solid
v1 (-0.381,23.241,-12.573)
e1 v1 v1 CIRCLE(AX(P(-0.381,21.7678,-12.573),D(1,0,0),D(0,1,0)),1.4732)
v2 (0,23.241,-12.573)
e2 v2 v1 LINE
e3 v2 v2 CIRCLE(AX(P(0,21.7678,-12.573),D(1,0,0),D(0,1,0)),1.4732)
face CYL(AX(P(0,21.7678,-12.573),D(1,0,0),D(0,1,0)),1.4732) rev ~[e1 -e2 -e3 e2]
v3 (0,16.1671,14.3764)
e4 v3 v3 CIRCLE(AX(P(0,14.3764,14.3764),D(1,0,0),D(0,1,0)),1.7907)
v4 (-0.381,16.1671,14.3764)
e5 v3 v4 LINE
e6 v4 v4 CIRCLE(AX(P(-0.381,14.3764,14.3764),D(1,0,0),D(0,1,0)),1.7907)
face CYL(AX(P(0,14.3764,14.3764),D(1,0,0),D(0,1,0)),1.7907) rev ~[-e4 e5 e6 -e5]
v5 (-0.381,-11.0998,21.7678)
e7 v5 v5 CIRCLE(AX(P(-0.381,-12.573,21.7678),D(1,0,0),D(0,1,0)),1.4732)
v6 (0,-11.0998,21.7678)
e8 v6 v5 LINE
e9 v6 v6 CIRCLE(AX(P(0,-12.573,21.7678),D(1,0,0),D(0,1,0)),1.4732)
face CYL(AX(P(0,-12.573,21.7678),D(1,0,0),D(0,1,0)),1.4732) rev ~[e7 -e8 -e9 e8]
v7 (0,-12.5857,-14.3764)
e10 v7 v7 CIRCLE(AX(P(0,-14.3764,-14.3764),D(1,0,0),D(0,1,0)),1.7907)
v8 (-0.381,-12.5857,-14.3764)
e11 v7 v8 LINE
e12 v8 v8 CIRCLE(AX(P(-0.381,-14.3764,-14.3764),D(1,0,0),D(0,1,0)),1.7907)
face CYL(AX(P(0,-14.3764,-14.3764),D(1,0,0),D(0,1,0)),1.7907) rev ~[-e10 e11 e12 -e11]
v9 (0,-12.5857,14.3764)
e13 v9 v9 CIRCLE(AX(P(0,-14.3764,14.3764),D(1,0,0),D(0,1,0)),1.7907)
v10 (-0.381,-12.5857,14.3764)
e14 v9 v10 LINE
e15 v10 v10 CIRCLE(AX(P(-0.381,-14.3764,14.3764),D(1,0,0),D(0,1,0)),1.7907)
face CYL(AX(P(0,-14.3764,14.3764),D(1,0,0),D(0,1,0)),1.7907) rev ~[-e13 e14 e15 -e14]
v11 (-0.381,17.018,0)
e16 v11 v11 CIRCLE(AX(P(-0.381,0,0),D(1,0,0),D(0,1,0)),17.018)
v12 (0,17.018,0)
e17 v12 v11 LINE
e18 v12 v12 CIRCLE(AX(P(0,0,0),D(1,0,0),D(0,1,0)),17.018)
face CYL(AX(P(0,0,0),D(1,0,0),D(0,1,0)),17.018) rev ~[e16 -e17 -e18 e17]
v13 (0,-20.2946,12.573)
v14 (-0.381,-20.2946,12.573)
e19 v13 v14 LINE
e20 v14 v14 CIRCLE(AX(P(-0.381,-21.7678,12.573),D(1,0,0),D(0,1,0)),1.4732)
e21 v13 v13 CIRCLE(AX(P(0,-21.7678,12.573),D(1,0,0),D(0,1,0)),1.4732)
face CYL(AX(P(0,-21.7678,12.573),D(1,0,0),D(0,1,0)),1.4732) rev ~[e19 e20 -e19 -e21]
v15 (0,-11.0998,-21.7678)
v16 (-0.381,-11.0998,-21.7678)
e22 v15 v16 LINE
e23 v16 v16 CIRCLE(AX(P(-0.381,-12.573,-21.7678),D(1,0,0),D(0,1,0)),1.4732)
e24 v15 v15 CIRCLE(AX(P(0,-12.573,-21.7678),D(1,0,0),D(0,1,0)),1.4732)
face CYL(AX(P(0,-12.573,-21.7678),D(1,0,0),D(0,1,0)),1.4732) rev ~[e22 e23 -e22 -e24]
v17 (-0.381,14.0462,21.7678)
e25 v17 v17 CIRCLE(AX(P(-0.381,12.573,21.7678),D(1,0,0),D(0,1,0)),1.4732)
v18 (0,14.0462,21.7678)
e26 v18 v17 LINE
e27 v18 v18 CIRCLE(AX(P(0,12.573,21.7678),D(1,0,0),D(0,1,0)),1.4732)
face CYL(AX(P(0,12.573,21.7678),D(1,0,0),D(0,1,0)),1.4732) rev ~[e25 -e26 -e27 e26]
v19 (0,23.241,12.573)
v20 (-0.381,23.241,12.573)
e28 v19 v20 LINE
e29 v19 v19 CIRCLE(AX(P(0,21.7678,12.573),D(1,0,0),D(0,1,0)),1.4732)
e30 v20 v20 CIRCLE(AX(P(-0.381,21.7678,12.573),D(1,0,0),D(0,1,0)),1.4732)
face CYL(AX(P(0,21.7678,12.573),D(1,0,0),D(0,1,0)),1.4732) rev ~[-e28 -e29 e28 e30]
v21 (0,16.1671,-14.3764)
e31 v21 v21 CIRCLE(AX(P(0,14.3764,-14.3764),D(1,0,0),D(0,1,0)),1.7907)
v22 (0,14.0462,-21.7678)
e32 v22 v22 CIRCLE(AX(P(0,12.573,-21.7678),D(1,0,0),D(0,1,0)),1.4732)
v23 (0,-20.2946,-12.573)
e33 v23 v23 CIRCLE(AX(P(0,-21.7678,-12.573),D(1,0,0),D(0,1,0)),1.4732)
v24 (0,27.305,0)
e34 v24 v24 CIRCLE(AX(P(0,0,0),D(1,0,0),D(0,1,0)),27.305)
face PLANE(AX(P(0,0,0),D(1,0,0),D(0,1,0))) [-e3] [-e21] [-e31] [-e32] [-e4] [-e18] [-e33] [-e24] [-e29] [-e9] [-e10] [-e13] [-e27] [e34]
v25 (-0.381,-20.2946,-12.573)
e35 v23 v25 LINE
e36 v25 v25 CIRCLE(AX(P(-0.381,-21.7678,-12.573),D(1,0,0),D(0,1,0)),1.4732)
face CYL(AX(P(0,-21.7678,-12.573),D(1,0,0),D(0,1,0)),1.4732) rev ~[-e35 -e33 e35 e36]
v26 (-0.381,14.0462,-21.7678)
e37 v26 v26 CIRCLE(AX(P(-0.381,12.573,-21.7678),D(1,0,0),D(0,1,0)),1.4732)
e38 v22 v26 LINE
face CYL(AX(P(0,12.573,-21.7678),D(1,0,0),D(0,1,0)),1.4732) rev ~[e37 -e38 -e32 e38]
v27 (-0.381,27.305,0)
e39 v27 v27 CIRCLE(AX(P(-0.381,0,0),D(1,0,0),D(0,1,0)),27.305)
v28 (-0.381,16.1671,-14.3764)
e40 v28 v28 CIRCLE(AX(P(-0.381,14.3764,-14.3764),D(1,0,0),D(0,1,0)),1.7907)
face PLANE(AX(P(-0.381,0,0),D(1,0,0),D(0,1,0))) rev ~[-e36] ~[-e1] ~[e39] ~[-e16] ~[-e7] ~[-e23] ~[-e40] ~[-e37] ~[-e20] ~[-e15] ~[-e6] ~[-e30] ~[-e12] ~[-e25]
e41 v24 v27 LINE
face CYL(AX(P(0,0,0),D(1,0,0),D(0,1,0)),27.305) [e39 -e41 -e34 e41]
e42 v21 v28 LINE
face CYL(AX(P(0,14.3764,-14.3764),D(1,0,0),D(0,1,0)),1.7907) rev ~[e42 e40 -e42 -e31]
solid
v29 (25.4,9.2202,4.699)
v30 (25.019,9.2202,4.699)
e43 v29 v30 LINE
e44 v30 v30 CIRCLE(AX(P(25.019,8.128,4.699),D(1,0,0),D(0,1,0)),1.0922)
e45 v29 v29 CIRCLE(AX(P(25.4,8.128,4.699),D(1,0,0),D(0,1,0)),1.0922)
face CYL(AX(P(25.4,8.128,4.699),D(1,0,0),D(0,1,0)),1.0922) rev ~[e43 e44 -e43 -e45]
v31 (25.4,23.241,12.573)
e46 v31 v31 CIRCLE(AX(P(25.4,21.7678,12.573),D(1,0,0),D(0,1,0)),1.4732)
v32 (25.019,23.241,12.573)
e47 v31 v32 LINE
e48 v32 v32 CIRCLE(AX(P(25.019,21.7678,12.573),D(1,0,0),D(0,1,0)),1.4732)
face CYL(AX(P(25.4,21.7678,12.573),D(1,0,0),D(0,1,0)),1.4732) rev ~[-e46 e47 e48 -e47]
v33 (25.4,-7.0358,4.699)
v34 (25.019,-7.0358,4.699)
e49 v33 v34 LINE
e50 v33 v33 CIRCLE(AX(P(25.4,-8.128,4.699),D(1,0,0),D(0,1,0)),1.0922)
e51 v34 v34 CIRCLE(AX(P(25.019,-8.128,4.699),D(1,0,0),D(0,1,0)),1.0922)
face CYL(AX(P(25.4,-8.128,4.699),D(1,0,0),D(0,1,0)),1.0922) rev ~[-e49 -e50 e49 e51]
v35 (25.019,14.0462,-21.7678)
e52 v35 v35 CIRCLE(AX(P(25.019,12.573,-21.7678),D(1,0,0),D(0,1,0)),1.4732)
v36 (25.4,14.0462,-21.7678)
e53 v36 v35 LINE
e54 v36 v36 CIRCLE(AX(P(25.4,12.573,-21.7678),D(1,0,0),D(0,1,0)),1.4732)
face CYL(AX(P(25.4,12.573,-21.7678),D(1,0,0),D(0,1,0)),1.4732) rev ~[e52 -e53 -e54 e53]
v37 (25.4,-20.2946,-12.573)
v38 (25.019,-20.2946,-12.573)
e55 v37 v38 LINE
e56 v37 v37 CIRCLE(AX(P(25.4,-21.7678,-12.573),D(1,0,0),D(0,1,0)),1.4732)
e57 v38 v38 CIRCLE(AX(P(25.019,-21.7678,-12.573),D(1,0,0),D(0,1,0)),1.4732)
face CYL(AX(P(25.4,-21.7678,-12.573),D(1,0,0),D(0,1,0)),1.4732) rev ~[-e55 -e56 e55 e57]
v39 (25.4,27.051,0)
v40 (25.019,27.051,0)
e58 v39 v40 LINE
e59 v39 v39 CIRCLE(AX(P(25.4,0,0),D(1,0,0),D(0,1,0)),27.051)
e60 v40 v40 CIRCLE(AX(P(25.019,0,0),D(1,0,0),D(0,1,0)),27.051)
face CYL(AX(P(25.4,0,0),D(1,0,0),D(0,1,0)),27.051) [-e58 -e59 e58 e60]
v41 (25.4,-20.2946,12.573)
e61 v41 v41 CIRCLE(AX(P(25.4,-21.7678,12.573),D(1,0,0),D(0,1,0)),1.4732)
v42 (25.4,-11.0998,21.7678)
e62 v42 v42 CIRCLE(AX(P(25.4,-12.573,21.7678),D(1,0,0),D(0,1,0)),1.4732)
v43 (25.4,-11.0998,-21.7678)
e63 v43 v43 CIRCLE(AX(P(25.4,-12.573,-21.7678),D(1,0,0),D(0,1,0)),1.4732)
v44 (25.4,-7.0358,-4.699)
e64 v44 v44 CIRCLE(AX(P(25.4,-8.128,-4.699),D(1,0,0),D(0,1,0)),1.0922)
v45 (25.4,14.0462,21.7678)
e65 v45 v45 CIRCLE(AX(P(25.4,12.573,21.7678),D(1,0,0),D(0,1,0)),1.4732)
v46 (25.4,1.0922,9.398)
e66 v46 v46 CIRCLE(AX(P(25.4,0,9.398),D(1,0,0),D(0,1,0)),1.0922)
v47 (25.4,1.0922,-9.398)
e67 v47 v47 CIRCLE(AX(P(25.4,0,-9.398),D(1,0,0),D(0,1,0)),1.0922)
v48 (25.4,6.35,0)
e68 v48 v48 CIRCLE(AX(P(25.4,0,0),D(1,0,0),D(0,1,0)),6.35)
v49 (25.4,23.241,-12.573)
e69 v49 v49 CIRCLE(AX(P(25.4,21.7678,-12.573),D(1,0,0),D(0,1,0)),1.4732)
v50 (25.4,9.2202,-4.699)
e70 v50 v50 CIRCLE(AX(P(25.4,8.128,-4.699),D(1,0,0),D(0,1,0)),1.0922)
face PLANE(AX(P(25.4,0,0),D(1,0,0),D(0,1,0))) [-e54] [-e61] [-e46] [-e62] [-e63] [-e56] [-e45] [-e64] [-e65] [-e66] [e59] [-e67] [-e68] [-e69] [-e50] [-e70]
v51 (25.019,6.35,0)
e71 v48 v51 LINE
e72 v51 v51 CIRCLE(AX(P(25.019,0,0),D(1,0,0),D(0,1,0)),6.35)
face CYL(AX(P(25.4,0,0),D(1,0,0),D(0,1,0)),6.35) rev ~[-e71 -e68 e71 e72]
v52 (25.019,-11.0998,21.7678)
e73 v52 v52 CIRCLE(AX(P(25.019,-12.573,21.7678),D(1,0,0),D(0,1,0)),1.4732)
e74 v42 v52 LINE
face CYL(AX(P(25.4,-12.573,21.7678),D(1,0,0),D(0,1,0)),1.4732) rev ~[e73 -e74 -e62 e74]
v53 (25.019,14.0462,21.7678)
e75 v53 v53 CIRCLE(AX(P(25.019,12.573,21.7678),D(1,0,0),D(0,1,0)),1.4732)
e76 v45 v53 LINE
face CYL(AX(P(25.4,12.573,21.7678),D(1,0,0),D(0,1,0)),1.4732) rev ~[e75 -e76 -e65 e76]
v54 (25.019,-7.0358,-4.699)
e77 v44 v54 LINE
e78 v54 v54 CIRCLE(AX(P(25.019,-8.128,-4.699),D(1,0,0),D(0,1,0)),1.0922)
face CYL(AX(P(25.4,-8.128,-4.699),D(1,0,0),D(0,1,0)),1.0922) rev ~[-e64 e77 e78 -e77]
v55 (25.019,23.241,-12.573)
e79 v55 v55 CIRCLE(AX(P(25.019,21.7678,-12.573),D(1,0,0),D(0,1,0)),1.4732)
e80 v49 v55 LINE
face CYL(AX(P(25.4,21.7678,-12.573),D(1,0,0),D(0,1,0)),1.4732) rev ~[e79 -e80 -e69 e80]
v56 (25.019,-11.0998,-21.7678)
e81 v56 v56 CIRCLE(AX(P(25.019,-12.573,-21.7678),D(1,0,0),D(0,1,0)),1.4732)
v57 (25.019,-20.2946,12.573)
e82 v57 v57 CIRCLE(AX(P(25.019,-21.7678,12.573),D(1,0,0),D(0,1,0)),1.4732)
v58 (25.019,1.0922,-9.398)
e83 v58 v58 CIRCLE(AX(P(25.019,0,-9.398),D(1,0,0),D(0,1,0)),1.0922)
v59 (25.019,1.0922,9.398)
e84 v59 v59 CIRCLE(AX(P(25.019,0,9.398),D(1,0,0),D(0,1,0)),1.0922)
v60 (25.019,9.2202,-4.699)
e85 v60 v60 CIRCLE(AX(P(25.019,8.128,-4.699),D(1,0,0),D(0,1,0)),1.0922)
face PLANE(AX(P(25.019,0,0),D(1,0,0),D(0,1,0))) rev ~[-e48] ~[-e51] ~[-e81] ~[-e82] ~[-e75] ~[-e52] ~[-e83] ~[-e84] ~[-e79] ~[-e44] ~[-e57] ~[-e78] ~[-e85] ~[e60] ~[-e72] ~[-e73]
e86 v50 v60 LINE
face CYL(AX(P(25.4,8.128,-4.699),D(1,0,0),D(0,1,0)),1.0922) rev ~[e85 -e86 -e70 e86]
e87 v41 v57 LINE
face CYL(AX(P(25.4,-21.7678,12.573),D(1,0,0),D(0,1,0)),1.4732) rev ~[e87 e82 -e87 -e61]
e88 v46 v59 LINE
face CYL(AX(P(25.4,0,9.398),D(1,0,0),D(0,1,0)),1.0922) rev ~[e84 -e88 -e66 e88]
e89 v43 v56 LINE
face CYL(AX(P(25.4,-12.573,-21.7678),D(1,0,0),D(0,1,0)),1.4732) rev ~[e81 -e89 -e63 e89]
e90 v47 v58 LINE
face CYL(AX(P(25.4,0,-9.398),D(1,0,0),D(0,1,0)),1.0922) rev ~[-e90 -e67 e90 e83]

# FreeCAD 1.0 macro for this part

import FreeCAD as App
import Part
import Sketcher

V = App.Vector
Q = App.Units.Quantity

doc = App.newDocument("Part")
body = doc.addObject("PartDesign::Body", "Body")

# Sketch on YZ plane
sketch1 = body.newObject("Sketcher::SketchObject", "Sketch")
sketch1.AttachmentSupport = (doc.getObject("YZ_Plane"), [""])
sketch1.MapMode = "FlatFace"
sketch1.addGeometry(Part.Circle(V(0, 0, 0), V(0, 0, 1), 27.305), False)
sketch1.addGeometry(Part.Circle(V(-12.573, -21.7678, 0), V(0, 0, 1), 1.4732), False)
sketch1.addGeometry(Part.Circle(V(-21.7678, -12.573, 0), V(0, 0, 1), 1.4732), False)
sketch1.addGeometry(Part.Circle(V(-14.3764, -14.3764, 0), V(0, 0, 1), 1.7907), False)
sketch1.addGeometry(Part.Circle(V(12.573, -21.7678, 0), V(0, 0, 1), 1.4732), False)
sketch1.addGeometry(Part.Circle(V(14.3764, -14.3764, 0), V(0, 0, 1), 1.7907), False)
sketch1.addGeometry(Part.Circle(V(21.7678, -12.573, 0), V(0, 0, 1), 1.4732), False)
sketch1.addGeometry(Part.Circle(V(-21.7678, 12.573, 0), V(0, 0, 1), 1.4732), False)
sketch1.addGeometry(Part.Circle(V(-14.3764, 14.3764, 0), V(0, 0, 1), 1.7907), False)
sketch1.addGeometry(Part.Circle(V(-12.573, 21.7678, 0), V(0, 0, 1), 1.4732), False)
sketch1.addGeometry(Part.Circle(V(0, 0, 0), V(0, 0, 1), 17.018), False)
sketch1.addGeometry(Part.Circle(V(14.3764, 14.3764, 0), V(0, 0, 1), 1.7907), False)
sketch1.addGeometry(Part.Circle(V(21.7678, 12.573, 0), V(0, 0, 1), 1.4732), False)
sketch1.addGeometry(Part.Circle(V(12.573, 21.7678, 0), V(0, 0, 1), 1.4732), False)
sketch1.addConstraint(Sketcher.Constraint("Coincident", 0, 3, -1, 1))
sketch1.addConstraint(Sketcher.Constraint("Coincident", 10, 3, -1, 1))
sketch1.addConstraint(Sketcher.Constraint("Equal", 1, 2))
sketch1.addConstraint(Sketcher.Constraint("Equal", 2, 4))
sketch1.addConstraint(Sketcher.Constraint("Equal", 3, 5))
sketch1.addConstraint(Sketcher.Constraint("Equal", 4, 6))
sketch1.addConstraint(Sketcher.Constraint("Equal", 6, 7))
sketch1.addConstraint(Sketcher.Constraint("Equal", 5, 8))
sketch1.addConstraint(Sketcher.Constraint("Equal", 7, 9))
sketch1.addConstraint(Sketcher.Constraint("Equal", 8, 11))
sketch1.addConstraint(Sketcher.Constraint("Equal", 9, 12))
sketch1.addConstraint(Sketcher.Constraint("Equal", 12, 13))
sketch1.addConstraint(Sketcher.Constraint("Symmetric", 6, 3, 7, 3, -1, 1))
sketch1.addConstraint(Sketcher.Constraint("Symmetric", 5, 3, 8, 3, -1, 1))
sketch1.addConstraint(Sketcher.Constraint("Symmetric", 4, 3, 9, 3, -1, 1))
sketch1.addConstraint(Sketcher.Constraint("Symmetric", 3, 3, 11, 3, -1, 1))
sketch1.addConstraint(Sketcher.Constraint("Symmetric", 2, 3, 12, 3, -1, 1))
sketch1.addConstraint(Sketcher.Constraint("Symmetric", 1, 3, 13, 3, -1, 1))
sketch1.addConstraint(Sketcher.Constraint("Symmetric", 1, 3, 4, 3, -2))
sketch1.addConstraint(Sketcher.Constraint("Symmetric", 3, 3, 5, 3, -2))
sketch1.addConstraint(Sketcher.Constraint("Symmetric", 2, 3, 6, 3, -2))
sketch1.addConstraint(Sketcher.Constraint("Diameter", 0, Q("2.15 in")))
sketch1.addConstraint(Sketcher.Constraint("Diameter", 10, Q("1.34 in")))
sketch1.addConstraint(Sketcher.Constraint("Diameter", 1, Q("0.116 in")))
sketch1.addConstraint(Sketcher.Constraint("Diameter", 3, Q("0.141 in")))
sketch1.addConstraint(Sketcher.Constraint("DistanceX", 1, 3, 4, 3, Q("0.99 in")))
sketch1.addConstraint(Sketcher.Constraint("DistanceY", 2, 3, 7, 3, Q("0.99 in")))
sketch1.addConstraint(Sketcher.Constraint("DistanceY", 1, 3, -1, 1, Q("0.857 in")))
sketch1.addConstraint(Sketcher.Constraint("DistanceX", 2, 3, -1, 1, Q("0.857 in")))
sketch1.addConstraint(Sketcher.Constraint("DistanceX", 3, 3, -1, 1, Q("0.566 in")))
sketch1.addConstraint(Sketcher.Constraint("DistanceY", 3, 3, -1, 1, Q("0.566 in")))
pad1 = body.newObject("PartDesign::Pad", "Pad")
pad1.Profile = sketch1
pad1.Length = Q("0.015 in")
pad1.Reversed = True
body2 = doc.addObject("PartDesign::Body", "Body001")

# Sketch on YZ plane
sketch2 = body2.newObject("Sketcher::SketchObject", "Sketch001")
sketch2.AttachmentSupport = (doc.getObject("YZ_Plane001"), [""])
sketch2.MapMode = "FlatFace"
sketch2.AttachmentOffset = App.Placement(V(0, 0, 1 * 25.4), App.Rotation())
sketch2.addGeometry(Part.Circle(V(0, 0, 0), V(0, 0, 1), 27.051), False)
sketch2.addGeometry(Part.Circle(V(-12.573, -21.7678, 0), V(0, 0, 1), 1.4732), False)
sketch2.addGeometry(Part.Circle(V(-21.7678, -12.573, 0), V(0, 0, 1), 1.4732), False)
sketch2.addGeometry(Part.Circle(V(-8.128, -4.699, 0), V(0, 0, 1), 1.0922), False)
sketch2.addGeometry(Part.Circle(V(12.573, -21.7678, 0), V(0, 0, 1), 1.4732), False)
sketch2.addGeometry(Part.Circle(V(21.7678, -12.573, 0), V(0, 0, 1), 1.4732), False)
sketch2.addGeometry(Part.Circle(V(0, -9.398, 0), V(0, 0, 1), 1.0922), False)
sketch2.addGeometry(Part.Circle(V(8.128, -4.699, 0), V(0, 0, 1), 1.0922), False)
sketch2.addGeometry(Part.Circle(V(-8.128, 4.699, 0), V(0, 0, 1), 1.0922), False)
sketch2.addGeometry(Part.Circle(V(-21.7678, 12.573, 0), V(0, 0, 1), 1.4732), False)
sketch2.addGeometry(Part.Circle(V(-12.573, 21.7678, 0), V(0, 0, 1), 1.4732), False)
sketch2.addGeometry(Part.Circle(V(0, 0, 0), V(0, 0, 1), 6.35), False)
sketch2.addGeometry(Part.Circle(V(8.128, 4.699, 0), V(0, 0, 1), 1.0922), False)
sketch2.addGeometry(Part.Circle(V(0, 9.398, 0), V(0, 0, 1), 1.0922), False)
sketch2.addGeometry(Part.Circle(V(21.7678, 12.573, 0), V(0, 0, 1), 1.4732), False)
sketch2.addGeometry(Part.Circle(V(12.573, 21.7678, 0), V(0, 0, 1), 1.4732), False)
sketch2.addConstraint(Sketcher.Constraint("Coincident", 0, 3, -1, 1))
sketch2.addConstraint(Sketcher.Constraint("Coincident", 11, 3, -1, 1))
sketch2.addConstraint(Sketcher.Constraint("Equal", 1, 2))
sketch2.addConstraint(Sketcher.Constraint("Equal", 2, 4))
sketch2.addConstraint(Sketcher.Constraint("Equal", 4, 5))
sketch2.addConstraint(Sketcher.Constraint("Equal", 3, 6))
sketch2.addConstraint(Sketcher.Constraint("Equal", 6, 7))
sketch2.addConstraint(Sketcher.Constraint("Equal", 7, 8))
sketch2.addConstraint(Sketcher.Constraint("Equal", 5, 9))
sketch2.addConstraint(Sketcher.Constraint("Equal", 9, 10))
sketch2.addConstraint(Sketcher.Constraint("Equal", 8, 12))
sketch2.addConstraint(Sketcher.Constraint("Equal", 12, 13))
sketch2.addConstraint(Sketcher.Constraint("Equal", 10, 14))
sketch2.addConstraint(Sketcher.Constraint("Equal", 14, 15))
sketch2.addConstraint(Sketcher.Constraint("Symmetric", 7, 3, 8, 3, -1, 1))
sketch2.addConstraint(Sketcher.Constraint("Symmetric", 5, 3, 9, 3, -1, 1))
sketch2.addConstraint(Sketcher.Constraint("Symmetric", 4, 3, 10, 3, -1, 1))
sketch2.addConstraint(Sketcher.Constraint("Symmetric", 3, 3, 12, 3, -1, 1))
sketch2.addConstraint(Sketcher.Constraint("Symmetric", 6, 3, 13, 3, -1, 1))
sketch2.addConstraint(Sketcher.Constraint("Symmetric", 2, 3, 14, 3, -1, 1))
sketch2.addConstraint(Sketcher.Constraint("Symmetric", 1, 3, 15, 3, -1, 1))
sketch2.addConstraint(Sketcher.Constraint("Symmetric", 1, 3, 4, 3, -2))
sketch2.addConstraint(Sketcher.Constraint("Symmetric", 2, 3, 5, 3, -2))
sketch2.addConstraint(Sketcher.Constraint("Symmetric", 3, 3, 7, 3, -2))
sketch2.addConstraint(Sketcher.Constraint("PointOnObject", 6, 3, -2))
sketch2.addConstraint(Sketcher.Constraint("Diameter", 11, Q("0.5 in")))
sketch2.addConstraint(Sketcher.Constraint("Diameter", 0, Q("2.13 in")))
sketch2.addConstraint(Sketcher.Constraint("Diameter", 1, Q("0.116 in")))
sketch2.addConstraint(Sketcher.Constraint("Diameter", 3, Q("0.086 in")))
sketch2.addConstraint(Sketcher.Constraint("DistanceX", 3, 3, -1, 1, Q("0.32 in")))
sketch2.addConstraint(Sketcher.Constraint("DistanceY", 6, 3, -1, 1, Q("0.37 in")))
sketch2.addConstraint(Sketcher.Constraint("DistanceY", 2, 3, 3, 3, Q("0.31 in")))
sketch2.addConstraint(Sketcher.Constraint("DistanceX", 1, 3, 4, 3, Q("0.99 in")))
sketch2.addConstraint(Sketcher.Constraint("DistanceY", 3, 3, 8, 3, Q("0.37 in")))
sketch2.addConstraint(Sketcher.Constraint("DistanceY", 1, 3, -1, 1, Q("0.857 in")))
sketch2.addConstraint(Sketcher.Constraint("DistanceX", 2, 3, -1, 1, Q("0.857 in")))
pad2 = body2.newObject("PartDesign::Pad", "Pad001")
pad2.Profile = sketch2
pad2.Length = Q("0.015 in")
pad2.Reversed = True

doc.recompute()
